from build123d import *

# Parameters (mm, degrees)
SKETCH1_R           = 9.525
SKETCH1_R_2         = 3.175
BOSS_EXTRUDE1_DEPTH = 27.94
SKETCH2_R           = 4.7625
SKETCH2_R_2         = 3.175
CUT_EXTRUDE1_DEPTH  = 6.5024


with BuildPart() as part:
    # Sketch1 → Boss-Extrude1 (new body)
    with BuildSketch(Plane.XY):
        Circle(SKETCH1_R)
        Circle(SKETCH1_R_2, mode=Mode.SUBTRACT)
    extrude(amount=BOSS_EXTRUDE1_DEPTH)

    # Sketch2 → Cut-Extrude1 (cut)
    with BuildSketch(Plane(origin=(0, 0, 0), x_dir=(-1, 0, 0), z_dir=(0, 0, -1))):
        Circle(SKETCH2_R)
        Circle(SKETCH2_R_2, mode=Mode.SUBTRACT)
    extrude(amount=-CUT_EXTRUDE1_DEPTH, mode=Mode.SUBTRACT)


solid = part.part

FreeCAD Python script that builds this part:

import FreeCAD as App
import Part
import Sketcher
Q = App.Units.Quantity

doc = App.newDocument("Part")
body = doc.addObject("PartDesign::Body", "Body")

# Sketch on XY plane
sketch1 = body.newObject("Sketcher::SketchObject", "Sketch")
sketch1.AttachmentSupport = (doc.getObject("XY_Plane"), [""])
sketch1.MapMode = "FlatFace"
sketch1.addGeometry([
    Part.Circle(App.Vector(0, 0, 0), App.Vector(0, 0, 1), 9.5),
    Part.Circle(App.Vector(0, 0, 0), App.Vector(0, 0, 1), 3.2),
], False)
sketch1.addConstraint([
    Sketcher.Constraint("Coincident", 0, 3, -1, 1),
    Sketcher.Constraint("Coincident", 1, 3, -1, 1),
    Sketcher.Constraint("Diameter", 0, Q("0.75 in")),
    Sketcher.Constraint("Diameter", 1, Q("0.25 in")),
])
pad1 = body.newObject("PartDesign::Pad", "Pad")
pad1.Profile = sketch1
pad1.Length = Q("1.1 in")

# Sketch on XY plane
sketch2 = body.newObject("Sketcher::SketchObject", "Sketch001")
sketch2.AttachmentSupport = (doc.getObject("XY_Plane"), [""])
sketch2.MapMode = "FlatFace"
sketch2.addGeometry([
    Part.Circle(App.Vector(0, 0, 0), App.Vector(0, 0, 1), 4.8),
    Part.Circle(App.Vector(0, 0, 0), App.Vector(0, 0, 1), 3.2),
], False)
sketch2.addConstraint([
    Sketcher.Constraint("Coincident", 0, 3, -1, 1),
    Sketcher.Constraint("Coincident", 1, 3, -1, 1),
    Sketcher.Constraint("Diameter", 1, Q("0.25 in")),
    Sketcher.Constraint("Diameter", 0, Q("0.375 in")),
])
pocket1 = body.newObject("PartDesign::Pocket", "Pocket")
pocket1.Profile = sketch2
pocket1.Length = Q("0.256 in")
pocket1.Reversed = True

doc.recompute()
